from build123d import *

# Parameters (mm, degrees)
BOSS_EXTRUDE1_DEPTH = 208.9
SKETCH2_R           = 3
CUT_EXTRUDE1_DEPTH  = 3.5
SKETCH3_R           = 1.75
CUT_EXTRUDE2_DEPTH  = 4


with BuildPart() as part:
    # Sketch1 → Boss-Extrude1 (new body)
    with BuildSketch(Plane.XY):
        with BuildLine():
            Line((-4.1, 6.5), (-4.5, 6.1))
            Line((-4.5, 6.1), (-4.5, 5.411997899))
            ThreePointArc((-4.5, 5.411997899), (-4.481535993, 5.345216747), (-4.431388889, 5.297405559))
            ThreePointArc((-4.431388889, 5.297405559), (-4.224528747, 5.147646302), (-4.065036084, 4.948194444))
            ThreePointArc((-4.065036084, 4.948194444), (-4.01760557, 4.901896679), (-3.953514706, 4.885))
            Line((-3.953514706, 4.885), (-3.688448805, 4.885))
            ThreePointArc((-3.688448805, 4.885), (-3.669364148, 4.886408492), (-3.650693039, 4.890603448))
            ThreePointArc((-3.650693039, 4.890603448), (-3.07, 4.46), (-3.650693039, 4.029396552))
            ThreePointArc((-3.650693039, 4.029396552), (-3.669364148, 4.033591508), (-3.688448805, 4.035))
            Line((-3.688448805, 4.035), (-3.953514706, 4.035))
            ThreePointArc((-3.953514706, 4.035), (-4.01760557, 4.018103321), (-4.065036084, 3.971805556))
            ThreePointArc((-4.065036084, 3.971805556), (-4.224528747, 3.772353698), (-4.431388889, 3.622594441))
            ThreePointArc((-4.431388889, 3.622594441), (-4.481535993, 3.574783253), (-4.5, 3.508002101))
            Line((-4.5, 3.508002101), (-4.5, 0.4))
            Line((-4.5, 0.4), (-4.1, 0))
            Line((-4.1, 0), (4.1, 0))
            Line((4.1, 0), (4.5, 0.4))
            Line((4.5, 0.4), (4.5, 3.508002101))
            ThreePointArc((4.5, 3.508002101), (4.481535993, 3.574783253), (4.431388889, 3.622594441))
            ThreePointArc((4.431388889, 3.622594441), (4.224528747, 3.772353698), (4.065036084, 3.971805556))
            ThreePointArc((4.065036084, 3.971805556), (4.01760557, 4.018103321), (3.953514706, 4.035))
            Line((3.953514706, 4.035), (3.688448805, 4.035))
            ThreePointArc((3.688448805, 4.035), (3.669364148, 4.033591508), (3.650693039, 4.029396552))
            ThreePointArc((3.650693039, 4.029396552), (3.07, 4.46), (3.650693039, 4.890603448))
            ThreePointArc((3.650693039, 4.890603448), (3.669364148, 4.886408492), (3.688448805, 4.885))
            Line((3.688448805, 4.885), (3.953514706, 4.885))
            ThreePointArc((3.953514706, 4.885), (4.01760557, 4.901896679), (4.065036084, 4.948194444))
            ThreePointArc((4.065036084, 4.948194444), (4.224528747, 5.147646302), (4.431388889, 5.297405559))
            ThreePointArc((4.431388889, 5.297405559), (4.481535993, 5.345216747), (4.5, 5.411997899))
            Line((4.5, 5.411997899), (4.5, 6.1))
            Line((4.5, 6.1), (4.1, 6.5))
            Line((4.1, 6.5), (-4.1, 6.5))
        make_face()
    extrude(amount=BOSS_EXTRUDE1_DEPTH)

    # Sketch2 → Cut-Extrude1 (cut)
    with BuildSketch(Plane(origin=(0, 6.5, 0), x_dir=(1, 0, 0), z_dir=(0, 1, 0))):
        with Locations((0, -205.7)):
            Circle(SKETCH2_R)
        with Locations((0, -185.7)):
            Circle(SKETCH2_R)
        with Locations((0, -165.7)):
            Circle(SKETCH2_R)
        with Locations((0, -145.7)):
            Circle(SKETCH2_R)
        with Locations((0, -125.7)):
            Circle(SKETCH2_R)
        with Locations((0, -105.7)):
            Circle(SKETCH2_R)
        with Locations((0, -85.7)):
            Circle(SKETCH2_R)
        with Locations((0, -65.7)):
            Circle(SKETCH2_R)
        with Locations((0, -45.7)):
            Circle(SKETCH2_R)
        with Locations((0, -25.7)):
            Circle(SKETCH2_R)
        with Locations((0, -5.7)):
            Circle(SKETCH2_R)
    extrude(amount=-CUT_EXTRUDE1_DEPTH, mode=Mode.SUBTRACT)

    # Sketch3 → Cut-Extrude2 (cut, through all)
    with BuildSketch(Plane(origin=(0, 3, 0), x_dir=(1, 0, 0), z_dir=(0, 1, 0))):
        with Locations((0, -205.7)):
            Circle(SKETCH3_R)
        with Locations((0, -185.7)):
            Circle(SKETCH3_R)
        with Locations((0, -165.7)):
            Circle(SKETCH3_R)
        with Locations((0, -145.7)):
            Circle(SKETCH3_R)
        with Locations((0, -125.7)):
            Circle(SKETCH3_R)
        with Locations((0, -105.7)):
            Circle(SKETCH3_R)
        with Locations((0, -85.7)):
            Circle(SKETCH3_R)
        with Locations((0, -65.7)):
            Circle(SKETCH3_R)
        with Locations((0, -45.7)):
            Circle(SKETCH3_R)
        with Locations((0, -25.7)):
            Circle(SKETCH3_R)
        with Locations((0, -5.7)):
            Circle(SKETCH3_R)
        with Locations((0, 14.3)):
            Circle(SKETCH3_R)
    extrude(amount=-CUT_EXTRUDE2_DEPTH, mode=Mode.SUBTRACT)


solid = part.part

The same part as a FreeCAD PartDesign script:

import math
import FreeCAD as App
import Part
import Sketcher

V = App.Vector
Q = App.Units.Quantity

doc = App.newDocument("Part")
params = doc.addObject("Spreadsheet::Sheet", "Params")
for row, (alias, value) in enumerate([
    ("sketch1_radius", "0.13 mm"),
    ("sketch1_radius2", "0.95 mm"),
    ("sketch1_radius3", "0.45 mm"),
    ("sketch1_width", "8.2 mm"),
    ("pad1_length", "208.9 mm"),
    ("sketch2_diameter", "6 mm"),
    ("pocket1_length", "3.5 mm"),
    ("sketch3_diameter", "3.5 mm"),
], start=1):
    params.set(f"A{row}", alias)
    params.set(f"B{row}", "=" + value)
    params.setAlias(f"B{row}", alias)

body = doc.addObject("PartDesign::Body", "Body")

sketch1 = doc.addObject("Sketcher::SketchObject", "Sketch")
body.addObject(sketch1)
sketch1.AttachmentSupport = (doc.XY_Plane, [""])
sketch1.MapMode = "FlatFace"
sketch1.addGeometry([
    Part.LineSegment(V(-4.1, 6.5, 0), V(-4.5, 6.1, 0)),
    Part.LineSegment(V(-4.5, 6.1, 0), V(-4.5, 5.412, 0)),
    Part.ArcOfCircle(Part.Circle(V(-4.37, 5.412, 0), V(0, 0, 1), 0.13), math.radians(180), math.radians(242)),
    Part.ArcOfCircle(Part.Circle(V(-4.88, 4.46, 0), V(0, 0, 1), 0.95), math.radians(31), math.radians(62)),
    Part.ArcOfCircle(Part.Circle(V(-3.954, 5.015, 0), V(0, 0, 1), 0.13), math.radians(-149), math.radians(-90)),
    Part.LineSegment(V(-3.954, 4.885, 0), V(-3.688, 4.885, 0)),
    Part.ArcOfCircle(Part.Circle(V(-3.688, 5.015, 0), V(0, 0, 1), 0.13), math.radians(-90), math.radians(-73.12)),
    Part.ArcOfCircle(Part.Circle(V(-3.52, 4.46, 0), V(0, 0, 1), 0.45), math.radians(-107), math.radians(107)),
    Part.ArcOfCircle(Part.Circle(V(-3.688, 3.905, 0), V(0, 0, 1), 0.13), math.radians(73.12), math.radians(90)),
    Part.LineSegment(V(-3.688, 4.035, 0), V(-3.954, 4.035, 0)),
    Part.ArcOfCircle(Part.Circle(V(-3.954, 3.905, 0), V(0, 0, 1), 0.13), math.radians(90), math.radians(149)),
    Part.ArcOfCircle(Part.Circle(V(-4.88, 4.46, 0), V(0, 0, 1), 0.95), math.radians(-62), math.radians(-31)),
    Part.ArcOfCircle(Part.Circle(V(-4.37, 3.508, 0), V(0, 0, 1), 0.13), math.radians(118), math.radians(180)),
    Part.LineSegment(V(-4.5, 3.508, 0), V(-4.5, 0.4, 0)),
    Part.LineSegment(V(-4.5, 0.4, 0), V(-4.1, 0, 0)),
    Part.LineSegment(V(-4.1, 0, 0), V(4.1, 0, 0)),
    Part.LineSegment(V(4.1, 0, 0), V(4.5, 0.4, 0)),
    Part.LineSegment(V(4.5, 0.4, 0), V(4.5, 3.508, 0)),
    Part.ArcOfCircle(Part.Circle(V(4.37, 3.508, 0), V(0, 0, 1), 0.13), math.radians(0), math.radians(62)),
    Part.ArcOfCircle(Part.Circle(V(4.88, 4.46, 0), V(0, 0, 1), 0.95), math.radians(-149), math.radians(-118)),
    Part.ArcOfCircle(Part.Circle(V(3.954, 3.905, 0), V(0, 0, 1), 0.13), math.radians(31), math.radians(90)),
    Part.LineSegment(V(3.954, 4.035, 0), V(3.688, 4.035, 0)),
    Part.ArcOfCircle(Part.Circle(V(3.688, 3.905, 0), V(0, 0, 1), 0.13), math.radians(90), math.radians(106.88)),
    Part.ArcOfCircle(Part.Circle(V(3.52, 4.46, 0), V(0, 0, 1), 0.45), math.radians(73), math.radians(287)),
    Part.ArcOfCircle(Part.Circle(V(3.688, 5.015, 0), V(0, 0, 1), 0.13), math.radians(-106.88), math.radians(-90)),
    Part.LineSegment(V(3.688, 4.885, 0), V(3.954, 4.885, 0)),
    Part.ArcOfCircle(Part.Circle(V(3.954, 5.015, 0), V(0, 0, 1), 0.13), math.radians(-90), math.radians(-31)),
    Part.ArcOfCircle(Part.Circle(V(4.88, 4.46, 0), V(0, 0, 1), 0.95), math.radians(118), math.radians(149)),
    Part.ArcOfCircle(Part.Circle(V(4.37, 5.412, 0), V(0, 0, 1), 0.13), math.radians(-62), math.radians(0)),
    Part.LineSegment(V(4.5, 5.412, 0), V(4.5, 6.1, 0)),
    Part.LineSegment(V(4.5, 6.1, 0), V(4.1, 6.5, 0)),
    Part.LineSegment(V(4.1, 6.5, 0), V(-4.1, 6.5, 0)),
], False)
sketch1.addConstraint([
    Sketcher.Constraint("Coincident", 0, 2, 1, 1),
    Sketcher.Constraint("Tangent", 1, 2, 2, 1),
    Sketcher.Constraint("Tangent", 2, 2, 3, 2),
    Sketcher.Constraint("Tangent", 3, 1, 4, 1),
    Sketcher.Constraint("Tangent", 4, 2, 5, 1),
    Sketcher.Constraint("Tangent", 5, 2, 6, 1),
    Sketcher.Constraint("Tangent", 6, 2, 7, 2),
    Sketcher.Constraint("Tangent", 7, 1, 8, 1),
    Sketcher.Constraint("Tangent", 8, 2, 9, 1),
    Sketcher.Constraint("Tangent", 9, 2, 10, 1),
    Sketcher.Constraint("Tangent", 10, 2, 11, 2),
    Sketcher.Constraint("Tangent", 11, 1, 12, 1),
    Sketcher.Constraint("Tangent", 12, 2, 13, 1),
    Sketcher.Constraint("Coincident", 13, 2, 14, 1),
    Sketcher.Constraint("Coincident", 14, 2, 15, 1),
    Sketcher.Constraint("Coincident", 15, 2, 16, 1),
    Sketcher.Constraint("Coincident", 16, 2, 17, 1),
    Sketcher.Constraint("Tangent", 17, 2, 18, 1),
    Sketcher.Constraint("Tangent", 18, 2, 19, 2),
    Sketcher.Constraint("Tangent", 19, 1, 20, 1),
    Sketcher.Constraint("Tangent", 20, 2, 21, 1),
    Sketcher.Constraint("Tangent", 21, 2, 22, 1),
    Sketcher.Constraint("Tangent", 22, 2, 23, 2),
    Sketcher.Constraint("Tangent", 23, 1, 24, 1),
    Sketcher.Constraint("Tangent", 24, 2, 25, 1),
    Sketcher.Constraint("Tangent", 25, 2, 26, 1),
    Sketcher.Constraint("Tangent", 26, 2, 27, 2),
    Sketcher.Constraint("Tangent", 27, 1, 28, 1),
    Sketcher.Constraint("Tangent", 28, 2, 29, 1),
    Sketcher.Constraint("Coincident", 29, 2, 30, 1),
    Sketcher.Constraint("Coincident", 30, 2, 31, 1),
    Sketcher.Constraint("Coincident", 31, 2, 0, 1),
    Sketcher.Constraint("Vertical", 1),
    Sketcher.Constraint("Horizontal", 5),
    Sketcher.Constraint("Horizontal", 9),
    Sketcher.Constraint("Vertical", 13),
    Sketcher.Constraint("Horizontal", 15),
    Sketcher.Constraint("Vertical", 17),
    Sketcher.Constraint("Horizontal", 21),
    Sketcher.Constraint("Horizontal", 25),
    Sketcher.Constraint("Vertical", 29),
    Sketcher.Constraint("Horizontal", 31),
    Sketcher.Constraint("Coincident", 11, 3, 3, 3),
    Sketcher.Constraint("Coincident", 27, 3, 19, 3),
    Sketcher.Constraint("Equal", 2, 4),
    Sketcher.Constraint("Equal", 4, 6),
    Sketcher.Constraint("Equal", 6, 8),
    Sketcher.Constraint("Equal", 8, 10),
    Sketcher.Constraint("Equal", 3, 11),
    Sketcher.Constraint("Equal", 10, 12),
    Sketcher.Constraint("Equal", 12, 18),
    Sketcher.Constraint("Equal", 11, 19),
    Sketcher.Constraint("Equal", 18, 20),
    Sketcher.Constraint("Equal", 20, 22),
    Sketcher.Constraint("Equal", 7, 23),
    Sketcher.Constraint("Equal", 22, 24),
    Sketcher.Constraint("Equal", 24, 26),
    Sketcher.Constraint("Equal", 19, 27),
    Sketcher.Constraint("Equal", 26, 28),
    Sketcher.Constraint("Symmetric", 14, 2, 15, 2, -1, 1),
    Sketcher.Constraint("Symmetric", 12, 3, 18, 3, -2),
    Sketcher.Constraint("Symmetric", 10, 3, 20, 3, -2),
    Sketcher.Constraint("Symmetric", 7, 3, 23, 3, -2),
    Sketcher.Constraint("Symmetric", 0, 2, 29, 2, -2),
    Sketcher.Constraint("Perpendicular", 0, 14),
    Sketcher.Constraint("Perpendicular", 14, 16),
    Sketcher.Constraint("Perpendicular", 16, 30),
    Sketcher.Constraint("Horizontal", 3, 3, 7, 3),
    Sketcher.Constraint("Horizontal", 6, 3, 24, 3),
    Sketcher.Constraint("Horizontal", 13, 2, 16, 2),
    Sketcher.Constraint("Vertical", 6, 3, 8, 3),
    Sketcher.Constraint("Vertical", 2, 3, 12, 3),
    Sketcher.Constraint("Vertical", 15, 2, 30, 2),
    Sketcher.Constraint("Radius", 2, Q("0.13 mm")),
    Sketcher.Constraint("Radius", 3, Q("0.95 mm")),
    Sketcher.Constraint("Radius", 7, Q("0.45 mm")),
    Sketcher.Constraint("DistanceX", 15, 1, 15, 2, Q("8.2 mm")),
    Sketcher.Constraint("DistanceX", 0, 2, -1, 1, Q("4.5 mm")),
    Sketcher.Constraint("DistanceY", -1, 1, 0, 2, Q("6.1 mm")),
    Sketcher.Constraint("DistanceX", 7, 3, 19, 3, Q("8.4 mm")),
    Sketcher.Constraint("DistanceX", 3, 3, -1, 1, Q("4.88 mm")),
    Sketcher.Constraint("DistanceY", -1, 1, 3, 3, Q("4.46 mm")),
    Sketcher.Constraint("DistanceY", 8, 3, 6, 3, Q("1.11 mm")),
])
sketch1.setExpression("Constraints[73]", "Params.sketch1_radius")
sketch1.setExpression("Constraints[74]", "Params.sketch1_radius2")
sketch1.setExpression("Constraints[75]", "Params.sketch1_radius3")
sketch1.setExpression("Constraints[76]", "Params.sketch1_width")
pad1 = doc.addObject("PartDesign::Pad", "Pad")
body.addObject(pad1)
pad1.Profile = sketch1
pad1.setExpression("Length", "Params.pad1_length")

sketch2 = doc.addObject("Sketcher::SketchObject", "Sketch001")
body.addObject(sketch2)
sketch2.AttachmentSupport = (doc.XZ_Plane, [""])
sketch2.MapMode = "FlatFace"
sketch2.AttachmentOffset = App.Placement(V(0, 0, -6.5), App.Rotation())
sketch2.addGeometry([
    Part.Circle(V(0, 205.7, 0), V(0, 0, 1), 3),
    Part.Circle(V(0, 185.7, 0), V(0, 0, 1), 3),
    Part.Circle(V(0, 165.7, 0), V(0, 0, 1), 3),
    Part.Circle(V(0, 145.7, 0), V(0, 0, 1), 3),
    Part.Circle(V(0, 125.7, 0), V(0, 0, 1), 3),
    Part.Circle(V(0, 105.7, 0), V(0, 0, 1), 3),
    Part.Circle(V(0, 85.7, 0), V(0, 0, 1), 3),
    Part.Circle(V(0, 65.7, 0), V(0, 0, 1), 3),
    Part.Circle(V(0, 45.7, 0), V(0, 0, 1), 3),
    Part.Circle(V(0, 25.7, 0), V(0, 0, 1), 3),
    Part.Circle(V(0, 5.7, 0), V(0, 0, 1), 3),
], False)
sketch2.addConstraint([
    Sketcher.Constraint("Equal", 0, 1),
    Sketcher.Constraint("Equal", 1, 2),
    Sketcher.Constraint("Equal", 2, 3),
    Sketcher.Constraint("Equal", 3, 4),
    Sketcher.Constraint("Equal", 4, 5),
    Sketcher.Constraint("Equal", 5, 6),
    Sketcher.Constraint("Equal", 6, 7),
    Sketcher.Constraint("Equal", 7, 8),
    Sketcher.Constraint("Equal", 8, 9),
    Sketcher.Constraint("Equal", 9, 10),
    Sketcher.Constraint("PointOnObject", 0, 3, -2),
    Sketcher.Constraint("PointOnObject", 1, 3, -2),
    Sketcher.Constraint("PointOnObject", 2, 3, -2),
    Sketcher.Constraint("PointOnObject", 3, 3, -2),
    Sketcher.Constraint("PointOnObject", 4, 3, -2),
    Sketcher.Constraint("PointOnObject", 5, 3, -2),
    Sketcher.Constraint("PointOnObject", 6, 3, -2),
    Sketcher.Constraint("PointOnObject", 7, 3, -2),
    Sketcher.Constraint("PointOnObject", 8, 3, -2),
    Sketcher.Constraint("PointOnObject", 9, 3, -2),
    Sketcher.Constraint("PointOnObject", 10, 3, -2),
    Sketcher.Constraint("Diameter", 0, Q("6 mm")),
    Sketcher.Constraint("DistanceY", 1, 3, 0, 3, Q("20 mm")),
    Sketcher.Constraint("DistanceY", 2, 3, 1, 3, Q("20 mm")),
    Sketcher.Constraint("DistanceY", 3, 3, 2, 3, Q("20 mm")),
    Sketcher.Constraint("DistanceY", 4, 3, 3, 3, Q("20 mm")),
    Sketcher.Constraint("DistanceY", 5, 3, 4, 3, Q("20 mm")),
    Sketcher.Constraint("DistanceY", 6, 3, 5, 3, Q("20 mm")),
    Sketcher.Constraint("DistanceY", 7, 3, 6, 3, Q("20 mm")),
    Sketcher.Constraint("DistanceY", 8, 3, 7, 3, Q("20 mm")),
    Sketcher.Constraint("DistanceY", 9, 3, 8, 3, Q("20 mm")),
    Sketcher.Constraint("DistanceY", 10, 3, 9, 3, Q("20 mm")),
    Sketcher.Constraint("DistanceY", -1, 1, 0, 3, Q("205.7 mm")),
])
sketch2.setExpression("Constraints[21]", "Params.sketch2_diameter")
pocket1 = doc.addObject("PartDesign::Pocket", "Pocket")
body.addObject(pocket1)
pocket1.Profile = sketch2
pocket1.setExpression("Length", "Params.pocket1_length")
pocket1.Reversed = True

sketch3 = doc.addObject("Sketcher::SketchObject", "Sketch002")
body.addObject(sketch3)
sketch3.AttachmentSupport = (doc.XZ_Plane, [""])
sketch3.MapMode = "FlatFace"
sketch3.AttachmentOffset = App.Placement(V(0, 0, -3), App.Rotation())
sketch3.addGeometry([
    Part.Circle(V(0, 205.7, 0), V(0, 0, 1), 1.8),
    Part.Circle(V(0, 185.7, 0), V(0, 0, 1), 1.8),
    Part.Circle(V(0, 165.7, 0), V(0, 0, 1), 1.8),
    Part.Circle(V(0, 145.7, 0), V(0, 0, 1), 1.8),
    Part.Circle(V(0, 125.7, 0), V(0, 0, 1), 1.8),
    Part.Circle(V(0, 105.7, 0), V(0, 0, 1), 1.8),
    Part.Circle(V(0, 85.7, 0), V(0, 0, 1), 1.8),
    Part.Circle(V(0, 65.7, 0), V(0, 0, 1), 1.8),
    Part.Circle(V(0, 45.7, 0), V(0, 0, 1), 1.8),
    Part.Circle(V(0, 25.7, 0), V(0, 0, 1), 1.8),
    Part.Circle(V(0, 5.7, 0), V(0, 0, 1), 1.8),
    Part.Circle(V(0, -14.3, 0), V(0, 0, 1), 1.8),
], False)
sketch3.addConstraint([
    Sketcher.Constraint("Equal", 0, 1),
    Sketcher.Constraint("Equal", 1, 2),
    Sketcher.Constraint("Equal", 2, 3),
    Sketcher.Constraint("Equal", 3, 4),
    Sketcher.Constraint("Equal", 4, 5),
    Sketcher.Constraint("Equal", 5, 6),
    Sketcher.Constraint("Equal", 6, 7),
    Sketcher.Constraint("Equal", 7, 8),
    Sketcher.Constraint("Equal", 8, 9),
    Sketcher.Constraint("Equal", 9, 10),
    Sketcher.Constraint("Equal", 10, 11),
    Sketcher.Constraint("PointOnObject", 0, 3, -2),
    Sketcher.Constraint("PointOnObject", 1, 3, -2),
    Sketcher.Constraint("PointOnObject", 2, 3, -2),
    Sketcher.Constraint("PointOnObject", 3, 3, -2),
    Sketcher.Constraint("PointOnObject", 4, 3, -2),
    Sketcher.Constraint("PointOnObject", 5, 3, -2),
    Sketcher.Constraint("PointOnObject", 6, 3, -2),
    Sketcher.Constraint("PointOnObject", 7, 3, -2),
    Sketcher.Constraint("PointOnObject", 8, 3, -2),
    Sketcher.Constraint("PointOnObject", 9, 3, -2),
    Sketcher.Constraint("PointOnObject", 10, 3, -2),
    Sketcher.Constraint("PointOnObject", 11, 3, -2),
    Sketcher.Constraint("Diameter", 0, Q("3.5 mm")),
    Sketcher.Constraint("DistanceY", 1, 3, 0, 3, Q("20 mm")),
    Sketcher.Constraint("DistanceY", 2, 3, 1, 3, Q("20 mm")),
    Sketcher.Constraint("DistanceY", 3, 3, 2, 3, Q("20 mm")),
    Sketcher.Constraint("DistanceY", 4, 3, 3, 3, Q("20 mm")),
    Sketcher.Constraint("DistanceY", 5, 3, 4, 3, Q("20 mm")),
    Sketcher.Constraint("DistanceY", 6, 3, 5, 3, Q("20 mm")),
    Sketcher.Constraint("DistanceY", 7, 3, 6, 3, Q("20 mm")),
    Sketcher.Constraint("DistanceY", 8, 3, 7, 3, Q("20 mm")),
    Sketcher.Constraint("DistanceY", 9, 3, 8, 3, Q("20 mm")),
    Sketcher.Constraint("DistanceY", 10, 3, 9, 3, Q("20 mm")),
    Sketcher.Constraint("DistanceY", 11, 3, 10, 3, Q("20 mm")),
    Sketcher.Constraint("DistanceY", -1, 1, 0, 3, Q("205.7 mm")),
])
sketch3.setExpression("Constraints[23]", "Params.sketch3_diameter")
pocket2 = doc.addObject("PartDesign::Pocket", "Pocket001")
body.addObject(pocket2)
pocket2.Profile = sketch3
pocket2.Type = "ThroughAll"
pocket2.Reversed = True

doc.recompute()
